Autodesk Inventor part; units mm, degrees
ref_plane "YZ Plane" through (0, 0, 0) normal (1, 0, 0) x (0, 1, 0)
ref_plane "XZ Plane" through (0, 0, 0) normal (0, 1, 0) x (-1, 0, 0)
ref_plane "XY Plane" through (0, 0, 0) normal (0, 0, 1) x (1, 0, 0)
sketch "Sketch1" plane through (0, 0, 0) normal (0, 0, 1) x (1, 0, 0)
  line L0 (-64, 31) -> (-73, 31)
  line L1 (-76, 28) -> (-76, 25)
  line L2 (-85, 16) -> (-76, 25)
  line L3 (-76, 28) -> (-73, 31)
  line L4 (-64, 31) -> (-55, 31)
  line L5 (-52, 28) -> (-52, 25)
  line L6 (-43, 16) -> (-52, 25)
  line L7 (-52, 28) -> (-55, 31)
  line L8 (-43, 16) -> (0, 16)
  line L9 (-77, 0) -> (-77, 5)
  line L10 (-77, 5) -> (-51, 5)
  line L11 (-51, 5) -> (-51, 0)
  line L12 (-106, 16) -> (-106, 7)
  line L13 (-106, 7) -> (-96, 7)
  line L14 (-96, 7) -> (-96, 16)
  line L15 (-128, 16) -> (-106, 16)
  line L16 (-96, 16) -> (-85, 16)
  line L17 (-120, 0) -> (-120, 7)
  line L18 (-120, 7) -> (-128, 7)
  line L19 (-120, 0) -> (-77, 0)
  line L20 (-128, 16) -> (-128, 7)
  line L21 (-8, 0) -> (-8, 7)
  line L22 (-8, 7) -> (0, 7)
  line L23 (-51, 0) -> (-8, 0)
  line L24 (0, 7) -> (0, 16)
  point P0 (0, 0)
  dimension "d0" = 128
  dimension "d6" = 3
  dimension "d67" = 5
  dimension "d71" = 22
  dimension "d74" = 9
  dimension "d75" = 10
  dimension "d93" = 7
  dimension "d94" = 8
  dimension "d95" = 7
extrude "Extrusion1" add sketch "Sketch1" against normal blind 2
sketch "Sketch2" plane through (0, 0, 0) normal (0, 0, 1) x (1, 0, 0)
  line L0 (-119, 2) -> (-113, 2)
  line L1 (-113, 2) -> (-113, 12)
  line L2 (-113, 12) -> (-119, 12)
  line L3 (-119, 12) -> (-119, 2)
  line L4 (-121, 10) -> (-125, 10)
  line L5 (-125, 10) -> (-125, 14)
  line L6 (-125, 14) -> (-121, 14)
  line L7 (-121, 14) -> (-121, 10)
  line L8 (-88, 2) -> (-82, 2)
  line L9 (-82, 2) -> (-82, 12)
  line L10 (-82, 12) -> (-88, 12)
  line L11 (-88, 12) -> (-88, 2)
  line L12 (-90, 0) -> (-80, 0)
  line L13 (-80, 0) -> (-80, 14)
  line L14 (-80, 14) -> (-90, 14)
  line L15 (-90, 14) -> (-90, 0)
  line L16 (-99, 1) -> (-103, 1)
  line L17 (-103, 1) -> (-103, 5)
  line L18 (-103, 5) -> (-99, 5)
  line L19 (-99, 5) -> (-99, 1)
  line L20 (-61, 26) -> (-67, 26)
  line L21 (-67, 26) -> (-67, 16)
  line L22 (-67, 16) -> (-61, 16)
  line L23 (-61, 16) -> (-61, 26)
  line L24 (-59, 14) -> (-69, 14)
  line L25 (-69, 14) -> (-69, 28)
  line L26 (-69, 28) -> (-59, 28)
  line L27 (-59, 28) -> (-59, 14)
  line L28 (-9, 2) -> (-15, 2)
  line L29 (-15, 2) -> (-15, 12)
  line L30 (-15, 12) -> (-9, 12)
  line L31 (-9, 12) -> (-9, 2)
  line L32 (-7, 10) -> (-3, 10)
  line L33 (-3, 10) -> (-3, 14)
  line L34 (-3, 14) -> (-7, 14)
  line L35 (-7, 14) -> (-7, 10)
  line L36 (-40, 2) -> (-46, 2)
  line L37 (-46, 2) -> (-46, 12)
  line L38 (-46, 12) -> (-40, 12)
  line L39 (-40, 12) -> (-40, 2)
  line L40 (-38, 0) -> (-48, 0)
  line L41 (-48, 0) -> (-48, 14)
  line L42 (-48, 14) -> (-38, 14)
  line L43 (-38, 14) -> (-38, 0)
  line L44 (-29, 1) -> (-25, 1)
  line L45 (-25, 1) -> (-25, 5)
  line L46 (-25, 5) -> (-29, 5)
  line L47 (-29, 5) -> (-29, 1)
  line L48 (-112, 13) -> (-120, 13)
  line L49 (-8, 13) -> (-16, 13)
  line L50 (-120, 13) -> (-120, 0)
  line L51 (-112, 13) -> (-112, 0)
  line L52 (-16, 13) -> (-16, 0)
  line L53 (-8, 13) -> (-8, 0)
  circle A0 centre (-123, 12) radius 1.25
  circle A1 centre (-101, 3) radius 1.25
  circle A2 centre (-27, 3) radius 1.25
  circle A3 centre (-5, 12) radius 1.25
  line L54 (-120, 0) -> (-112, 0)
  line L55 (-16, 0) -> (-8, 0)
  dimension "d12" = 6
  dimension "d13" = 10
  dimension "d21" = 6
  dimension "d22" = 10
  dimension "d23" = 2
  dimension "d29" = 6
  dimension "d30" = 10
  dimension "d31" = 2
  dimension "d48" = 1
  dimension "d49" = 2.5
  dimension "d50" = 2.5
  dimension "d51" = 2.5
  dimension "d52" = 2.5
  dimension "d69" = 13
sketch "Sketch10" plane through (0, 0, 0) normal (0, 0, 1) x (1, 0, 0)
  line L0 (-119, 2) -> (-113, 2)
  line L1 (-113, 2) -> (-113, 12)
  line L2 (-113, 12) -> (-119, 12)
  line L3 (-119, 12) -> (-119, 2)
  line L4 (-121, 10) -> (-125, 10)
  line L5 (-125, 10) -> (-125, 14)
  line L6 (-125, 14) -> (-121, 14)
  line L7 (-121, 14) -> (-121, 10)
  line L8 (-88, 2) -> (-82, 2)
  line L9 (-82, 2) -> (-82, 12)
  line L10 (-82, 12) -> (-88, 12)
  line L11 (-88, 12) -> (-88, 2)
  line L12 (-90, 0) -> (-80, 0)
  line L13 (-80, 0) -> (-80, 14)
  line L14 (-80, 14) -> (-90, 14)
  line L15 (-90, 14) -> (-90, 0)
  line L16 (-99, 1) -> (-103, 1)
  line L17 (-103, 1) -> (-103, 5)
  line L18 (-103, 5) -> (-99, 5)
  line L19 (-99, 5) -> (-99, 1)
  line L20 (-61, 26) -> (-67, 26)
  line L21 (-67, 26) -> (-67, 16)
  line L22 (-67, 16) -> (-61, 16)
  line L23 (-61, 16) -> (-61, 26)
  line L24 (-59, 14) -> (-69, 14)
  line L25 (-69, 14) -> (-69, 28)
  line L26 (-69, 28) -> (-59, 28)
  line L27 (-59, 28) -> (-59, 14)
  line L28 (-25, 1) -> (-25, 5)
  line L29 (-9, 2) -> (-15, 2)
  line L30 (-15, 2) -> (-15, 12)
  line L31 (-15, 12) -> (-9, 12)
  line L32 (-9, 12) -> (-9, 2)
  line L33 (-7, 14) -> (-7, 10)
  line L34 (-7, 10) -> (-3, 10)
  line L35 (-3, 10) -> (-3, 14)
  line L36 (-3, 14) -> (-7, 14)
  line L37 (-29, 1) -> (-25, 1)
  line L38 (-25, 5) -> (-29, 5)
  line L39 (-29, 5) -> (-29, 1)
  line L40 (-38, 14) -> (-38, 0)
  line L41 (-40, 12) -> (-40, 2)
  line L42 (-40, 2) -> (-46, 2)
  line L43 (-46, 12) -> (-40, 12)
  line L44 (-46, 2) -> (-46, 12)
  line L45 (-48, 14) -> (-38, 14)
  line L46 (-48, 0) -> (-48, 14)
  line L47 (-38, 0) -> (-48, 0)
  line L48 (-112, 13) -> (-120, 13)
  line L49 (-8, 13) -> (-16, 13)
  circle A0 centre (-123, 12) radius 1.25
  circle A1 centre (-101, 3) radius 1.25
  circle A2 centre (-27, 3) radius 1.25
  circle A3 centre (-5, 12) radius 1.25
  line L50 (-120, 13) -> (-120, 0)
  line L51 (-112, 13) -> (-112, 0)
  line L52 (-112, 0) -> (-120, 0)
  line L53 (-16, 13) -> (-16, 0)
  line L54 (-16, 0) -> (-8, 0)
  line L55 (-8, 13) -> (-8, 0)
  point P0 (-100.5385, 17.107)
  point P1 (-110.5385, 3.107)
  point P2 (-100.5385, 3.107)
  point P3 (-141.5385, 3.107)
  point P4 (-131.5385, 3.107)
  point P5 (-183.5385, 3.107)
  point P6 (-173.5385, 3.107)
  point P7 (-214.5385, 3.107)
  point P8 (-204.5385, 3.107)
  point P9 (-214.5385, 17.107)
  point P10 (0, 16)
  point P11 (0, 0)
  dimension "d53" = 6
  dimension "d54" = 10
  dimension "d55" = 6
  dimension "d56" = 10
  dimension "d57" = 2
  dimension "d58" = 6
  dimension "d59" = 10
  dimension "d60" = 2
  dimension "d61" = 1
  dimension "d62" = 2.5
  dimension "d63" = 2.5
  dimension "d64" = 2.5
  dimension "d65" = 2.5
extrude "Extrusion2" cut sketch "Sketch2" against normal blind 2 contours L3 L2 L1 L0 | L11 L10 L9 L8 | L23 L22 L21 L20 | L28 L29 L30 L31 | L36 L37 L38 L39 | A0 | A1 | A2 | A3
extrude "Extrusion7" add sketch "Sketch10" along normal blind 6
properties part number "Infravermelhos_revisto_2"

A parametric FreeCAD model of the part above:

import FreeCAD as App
import Part
import Sketcher
from FreeCAD import Vector

doc = App.newDocument("Part")
params = doc.addObject("Spreadsheet::Sheet", "Params")
for row, (alias, value) in enumerate([
    ("sketch1_width", "10 mm"),
    ("sketch1_width2", "22 mm"),
    ("sketch1_width3", "8 mm"),
    ("sketch1_height", "3 mm"),
    ("sketch1_height2", "9 mm"),
    ("pad1_length", "2 mm"),
    ("sketch2_diameter", "2.5 mm"),
    ("sketch2_width", "6 mm"),
    ("sketch2_height", "10 mm"),
    ("pocket1_length", "2 mm"),
    ("sketch3_diameter", "2.5 mm"),
    ("sketch3_width", "10 mm"),
    ("sketch3_width2", "6 mm"),
    ("pad2_length", "6 mm"),
], start=1):
    params.set(f"A{row}", alias)
    params.set(f"B{row}", "=" + value)
    params.setAlias(f"B{row}", alias)

body = doc.addObject("PartDesign::Body", "Body")

# Sketch on XY plane
sketch1 = body.newObject("Sketcher::SketchObject", "Sketch")
sketch1.AttachmentSupport = (doc.getObject("XY_Plane"), [""])
sketch1.MapMode = "FlatFace"
sketch1.addGeometry([
    Part.LineSegment(Vector(-55, 31, 0), Vector(-73, 31, 0)),  # 0
    Part.LineSegment(Vector(-73, 31, 0), Vector(-76, 28, 0)),  # 1
    Part.LineSegment(Vector(-76, 28, 0), Vector(-76, 25, 0)),  # 2
    Part.LineSegment(Vector(-76, 25, 0), Vector(-85, 16, 0)),  # 3
    Part.LineSegment(Vector(-85, 16, 0), Vector(-96, 16, 0)),  # 4
    Part.LineSegment(Vector(-96, 16, 0), Vector(-96, 7, 0)),  # 5
    Part.LineSegment(Vector(-96, 7, 0), Vector(-106, 7, 0)),  # 6
    Part.LineSegment(Vector(-106, 7, 0), Vector(-106, 16, 0)),  # 7
    Part.LineSegment(Vector(-106, 16, 0), Vector(-128, 16, 0)),  # 8
    Part.LineSegment(Vector(-128, 16, 0), Vector(-128, 7, 0)),  # 9
    Part.LineSegment(Vector(-128, 7, 0), Vector(-120, 7, 0)),  # 10
    Part.LineSegment(Vector(-120, 7, 0), Vector(-120, 0, 0)),  # 11
    Part.LineSegment(Vector(-120, 0, 0), Vector(-77, 0, 0)),  # 12
    Part.LineSegment(Vector(-77, 0, 0), Vector(-77, 5, 0)),  # 13
    Part.LineSegment(Vector(-77, 5, 0), Vector(-51, 5, 0)),  # 14
    Part.LineSegment(Vector(-51, 5, 0), Vector(-51, 0, 0)),  # 15
    Part.LineSegment(Vector(-51, 0, 0), Vector(-8, 0, 0)),  # 16
    Part.LineSegment(Vector(-8, 0, 0), Vector(-8, 7, 0)),  # 17
    Part.LineSegment(Vector(-8, 7, 0), Vector(0, 7, 0)),  # 18
    Part.LineSegment(Vector(0, 7, 0), Vector(0, 16, 0)),  # 19
    Part.LineSegment(Vector(0, 16, 0), Vector(-43, 16, 0)),  # 20
    Part.LineSegment(Vector(-43, 16, 0), Vector(-52, 25, 0)),  # 21
    Part.LineSegment(Vector(-52, 25, 0), Vector(-52, 28, 0)),  # 22
    Part.LineSegment(Vector(-52, 28, 0), Vector(-55, 31, 0)),  # 23
], False)
sketch1.addConstraint([
    Sketcher.Constraint("Coincident", 0, 2, 1, 1),
    Sketcher.Constraint("Coincident", 1, 2, 2, 1),
    Sketcher.Constraint("Coincident", 2, 2, 3, 1),
    Sketcher.Constraint("Coincident", 3, 2, 4, 1),
    Sketcher.Constraint("Coincident", 4, 2, 5, 1),
    Sketcher.Constraint("Coincident", 5, 2, 6, 1),
    Sketcher.Constraint("Coincident", 6, 2, 7, 1),
    Sketcher.Constraint("Coincident", 7, 2, 8, 1),
    Sketcher.Constraint("Coincident", 8, 2, 9, 1),
    Sketcher.Constraint("Coincident", 9, 2, 10, 1),
    Sketcher.Constraint("Coincident", 10, 2, 11, 1),
    Sketcher.Constraint("Coincident", 11, 2, 12, 1),
    Sketcher.Constraint("Coincident", 12, 2, 13, 1),
    Sketcher.Constraint("Coincident", 13, 2, 14, 1),
    Sketcher.Constraint("Coincident", 14, 2, 15, 1),
    Sketcher.Constraint("Coincident", 15, 2, 16, 1),
    Sketcher.Constraint("Coincident", 16, 2, 17, 1),
    Sketcher.Constraint("Coincident", 17, 2, 18, 1),
    Sketcher.Constraint("Coincident", 18, 2, 19, 1),
    Sketcher.Constraint("Coincident", 19, 2, 20, 1),
    Sketcher.Constraint("Coincident", 20, 2, 21, 1),
    Sketcher.Constraint("Coincident", 21, 2, 22, 1),
    Sketcher.Constraint("Coincident", 22, 2, 23, 1),
    Sketcher.Constraint("Coincident", 23, 2, 0, 1),
    Sketcher.Constraint("Horizontal", 0),
    Sketcher.Constraint("Vertical", 2),
    Sketcher.Constraint("Horizontal", 4),
    Sketcher.Constraint("Vertical", 5),
    Sketcher.Constraint("Horizontal", 6),
    Sketcher.Constraint("Vertical", 7),
    Sketcher.Constraint("Horizontal", 8),
    Sketcher.Constraint("Vertical", 9),
    Sketcher.Constraint("Horizontal", 10),
    Sketcher.Constraint("Vertical", 11),
    Sketcher.Constraint("Horizontal", 12),
    Sketcher.Constraint("Vertical", 13),
    Sketcher.Constraint("Horizontal", 14),
    Sketcher.Constraint("Vertical", 15),
    Sketcher.Constraint("Horizontal", 16),
    Sketcher.Constraint("Vertical", 17),
    Sketcher.Constraint("Horizontal", 18),
    Sketcher.Constraint("Vertical", 19),
    Sketcher.Constraint("Horizontal", 20),
    Sketcher.Constraint("Vertical", 22),
    Sketcher.Constraint("PointOnObject", 11, 2, -1),
    Sketcher.Constraint("PointOnObject", 15, 2, -1),
    Sketcher.Constraint("PointOnObject", 18, 2, -2),
    Sketcher.Constraint("Parallel", 1, 3),
    Sketcher.Constraint("Perpendicular", 3, 21),
    Sketcher.Constraint("Parallel", 21, 23),
    Sketcher.Constraint("Horizontal", 4, 2, 7, 2),
    Sketcher.Constraint("Horizontal", 6, 2, 9, 2),
    Sketcher.Constraint("Horizontal", 10, 2, 17, 2),
    Sketcher.Constraint("Horizontal", 8, 2, 19, 2),
    Sketcher.Constraint("Horizontal", 2, 2, 21, 2),
    Sketcher.Constraint("Horizontal", 1, 2, 22, 2),
    Sketcher.Constraint("Equal", 12, 16),
    Sketcher.Constraint("Equal", 10, 18),
    Sketcher.Constraint("Equal", 16, 20),
    Sketcher.Constraint("Equal", 3, 21),
    Sketcher.Constraint("DistanceX", 6, 2, 6, 1, 10.0),
    Sketcher.Constraint("DistanceX", 8, 2, 8, 1, 22.0),
    Sketcher.Constraint("DistanceX", 10, 1, 10, 2, 8.0),
    Sketcher.Constraint("DistanceY", 2, 2, 2, 1, 3.0),
    Sketcher.Constraint("DistanceY", 5, 2, 5, 1, 9.0),
    Sketcher.Constraint("DistanceY", 11, 2, 11, 1, 7.0),
    Sketcher.Constraint("DistanceY", 13, 1, 13, 2, 5.0),
    Sketcher.Constraint("DistanceX", 8, 2, -1, 1, 128.0),
    Sketcher.Constraint("DistanceX", 1, 2, 0, 2, 3.0),
    Sketcher.Constraint("DistanceX", 3, 2, 2, 2, 9.0),
    Sketcher.Constraint("DistanceX", 3, 2, 12, 2, 8.0),
    Sketcher.Constraint("DistanceX", 0, 2, 14, 2, 22.0),
])
sketch1.setExpression("Constraints[60]", "Params.sketch1_width")
sketch1.setExpression("Constraints[61]", "Params.sketch1_width2")
sketch1.setExpression("Constraints[62]", "Params.sketch1_width3")
sketch1.setExpression("Constraints[63]", "Params.sketch1_height")
sketch1.setExpression("Constraints[64]", "Params.sketch1_height2")
pad1 = body.newObject("PartDesign::Pad", "Pad")
pad1.Profile = sketch1
pad1.setExpression("Length", "Params.pad1_length")
pad1.Reversed = True

# Sketch on XY plane
sketch2 = body.newObject("Sketcher::SketchObject", "Sketch001")
sketch2.AttachmentSupport = (doc.getObject("XY_Plane"), [""])
sketch2.MapMode = "FlatFace"
sketch2.addGeometry([
    Part.LineSegment(Vector(-119, 12, 0), Vector(-119, 2, 0)),  # 0
    Part.LineSegment(Vector(-119, 2, 0), Vector(-113, 2, 0)),  # 1
    Part.LineSegment(Vector(-113, 2, 0), Vector(-113, 12, 0)),  # 2
    Part.LineSegment(Vector(-113, 12, 0), Vector(-119, 12, 0)),  # 3
    Part.LineSegment(Vector(-88, 12, 0), Vector(-88, 2, 0)),  # 4
    Part.LineSegment(Vector(-88, 2, 0), Vector(-82, 2, 0)),  # 5
    Part.LineSegment(Vector(-82, 2, 0), Vector(-82, 12, 0)),  # 6
    Part.LineSegment(Vector(-82, 12, 0), Vector(-88, 12, 0)),  # 7
    Part.LineSegment(Vector(-61, 16, 0), Vector(-61, 26, 0)),  # 8
    Part.LineSegment(Vector(-61, 26, 0), Vector(-67, 26, 0)),  # 9
    Part.LineSegment(Vector(-67, 26, 0), Vector(-67, 16, 0)),  # 10
    Part.LineSegment(Vector(-67, 16, 0), Vector(-61, 16, 0)),  # 11
    Part.LineSegment(Vector(-15, 2, 0), Vector(-9, 2, 0)),  # 12
    Part.LineSegment(Vector(-9, 2, 0), Vector(-9, 12, 0)),  # 13
    Part.LineSegment(Vector(-9, 12, 0), Vector(-15, 12, 0)),  # 14
    Part.LineSegment(Vector(-15, 12, 0), Vector(-15, 2, 0)),  # 15
    Part.LineSegment(Vector(-46, 2, 0), Vector(-40, 2, 0)),  # 16
    Part.LineSegment(Vector(-40, 2, 0), Vector(-40, 12, 0)),  # 17
    Part.LineSegment(Vector(-40, 12, 0), Vector(-46, 12, 0)),  # 18
    Part.LineSegment(Vector(-46, 12, 0), Vector(-46, 2, 0)),  # 19
    Part.Circle(Vector(-123, 12, 0), Vector(0, 0, 1), 1.2),  # 20
    Part.Circle(Vector(-101, 3, 0), Vector(0, 0, 1), 1.2),  # 21
    Part.Circle(Vector(-27, 3, 0), Vector(0, 0, 1), 1.2),  # 22
    Part.Circle(Vector(-5, 12, 0), Vector(0, 0, 1), 1.2),  # 23
], False)
sketch2.addConstraint([
    Sketcher.Constraint("Coincident", 0, 2, 1, 1),
    Sketcher.Constraint("Coincident", 1, 2, 2, 1),
    Sketcher.Constraint("Coincident", 2, 2, 3, 1),
    Sketcher.Constraint("Coincident", 3, 2, 0, 1),
    Sketcher.Constraint("Coincident", 4, 2, 5, 1),
    Sketcher.Constraint("Coincident", 5, 2, 6, 1),
    Sketcher.Constraint("Coincident", 6, 2, 7, 1),
    Sketcher.Constraint("Coincident", 7, 2, 4, 1),
    Sketcher.Constraint("Coincident", 8, 2, 9, 1),
    Sketcher.Constraint("Coincident", 9, 2, 10, 1),
    Sketcher.Constraint("Coincident", 10, 2, 11, 1),
    Sketcher.Constraint("Coincident", 11, 2, 8, 1),
    Sketcher.Constraint("Coincident", 12, 2, 13, 1),
    Sketcher.Constraint("Coincident", 13, 2, 14, 1),
    Sketcher.Constraint("Coincident", 14, 2, 15, 1),
    Sketcher.Constraint("Coincident", 15, 2, 12, 1),
    Sketcher.Constraint("Coincident", 16, 2, 17, 1),
    Sketcher.Constraint("Coincident", 17, 2, 18, 1),
    Sketcher.Constraint("Coincident", 18, 2, 19, 1),
    Sketcher.Constraint("Coincident", 19, 2, 16, 1),
    Sketcher.Constraint("Vertical", 0),
    Sketcher.Constraint("Horizontal", 1),
    Sketcher.Constraint("Vertical", 2),
    Sketcher.Constraint("Horizontal", 3),
    Sketcher.Constraint("Vertical", 4),
    Sketcher.Constraint("Horizontal", 5),
    Sketcher.Constraint("Vertical", 6),
    Sketcher.Constraint("Horizontal", 7),
    Sketcher.Constraint("Vertical", 8),
    Sketcher.Constraint("Horizontal", 9),
    Sketcher.Constraint("Vertical", 10),
    Sketcher.Constraint("Horizontal", 11),
    Sketcher.Constraint("Horizontal", 12),
    Sketcher.Constraint("Vertical", 13),
    Sketcher.Constraint("Horizontal", 14),
    Sketcher.Constraint("Vertical", 15),
    Sketcher.Constraint("Horizontal", 16),
    Sketcher.Constraint("Vertical", 17),
    Sketcher.Constraint("Horizontal", 18),
    Sketcher.Constraint("Vertical", 19),
    Sketcher.Constraint("Equal", 20, 21),
    Sketcher.Constraint("Equal", 21, 22),
    Sketcher.Constraint("Equal", 22, 23),
    Sketcher.Constraint("Horizontal", 21, 3, 22, 3),
    Sketcher.Constraint("Horizontal", 20, 3, 23, 3),
    Sketcher.Constraint("Horizontal", 23, 3, 2, 2),
    Sketcher.Constraint("Horizontal", 1, 2, 4, 2),
    Sketcher.Constraint("Horizontal", 3, 2, 6, 2),
    Sketcher.Constraint("Horizontal", 5, 2, 12, 2),
    Sketcher.Constraint("Horizontal", 7, 2, 13, 2),
    Sketcher.Constraint("Horizontal", 15, 2, 16, 2),
    Sketcher.Constraint("Horizontal", 14, 2, 17, 2),
    Sketcher.Constraint("Equal", 3, 5),
    Sketcher.Constraint("Equal", 7, 9),
    Sketcher.Constraint("Equal", 11, 12),
    Sketcher.Constraint("Equal", 14, 16),
    Sketcher.Constraint("Equal", 6, 8),
    Sketcher.Constraint("Diameter", 20, 2.5),
    Sketcher.Constraint("DistanceX", 1, 1, 1, 2, 6.0),
    Sketcher.Constraint("DistanceY", 0, 2, 0, 1, 10.0),
    Sketcher.Constraint("DistanceY", -1, 1, 0, 2, 2.0),
    Sketcher.Constraint("DistanceY", 0, 2, 21, 3, 1.0),
    Sketcher.Constraint("DistanceX", 20, 3, 1, 2, 10.0),
    Sketcher.Constraint("DistanceX", 21, 3, 4, 2, 13.0),
    Sketcher.Constraint("DistanceX", 14, 2, 23, 3, 10.0),
    Sketcher.Constraint("DistanceX", 16, 2, 22, 3, 13.0),
    Sketcher.Constraint("DistanceX", 20, 3, -1, 1, 123.0),
    Sketcher.Constraint("DistanceX", 21, 3, -1, 1, 101.0),
    Sketcher.Constraint("DistanceX", 22, 3, -1, 1, 27.0),
    Sketcher.Constraint("DistanceX", 23, 3, -1, 1, 5.0),
    Sketcher.Constraint("DistanceX", 8, 2, -1, 1, 61.0),
    Sketcher.Constraint("DistanceY", -1, 1, 8, 2, 26.0),
])
sketch2.setExpression("Constraints[57]", "Params.sketch2_diameter")
sketch2.setExpression("Constraints[58]", "Params.sketch2_width")
sketch2.setExpression("Constraints[59]", "Params.sketch2_height")
pocket1 = body.newObject("PartDesign::Pocket", "Pocket")
pocket1.Profile = sketch2
pocket1.setExpression("Length", "Params.pocket1_length")

# Sketch on XY plane
sketch3 = body.newObject("Sketcher::SketchObject", "Sketch002")
sketch3.AttachmentSupport = (doc.getObject("XY_Plane"), [""])
sketch3.MapMode = "FlatFace"
sketch3.addGeometry([
    Part.LineSegment(Vector(-125, 10, 0), Vector(-121, 10, 0)),  # 0
    Part.LineSegment(Vector(-121, 10, 0), Vector(-121, 14, 0)),  # 1
    Part.LineSegment(Vector(-121, 14, 0), Vector(-125, 14, 0)),  # 2
    Part.LineSegment(Vector(-125, 14, 0), Vector(-125, 10, 0)),  # 3
    Part.Circle(Vector(-123, 12, 0), Vector(0, 0, 1), 1.2),  # 4
    Part.LineSegment(Vector(-90, 14, 0), Vector(-90, 0, 0)),  # 5
    Part.LineSegment(Vector(-90, 0, 0), Vector(-80, 0, 0)),  # 6
    Part.LineSegment(Vector(-80, 0, 0), Vector(-80, 14, 0)),  # 7
    Part.LineSegment(Vector(-80, 14, 0), Vector(-90, 14, 0)),  # 8
    Part.LineSegment(Vector(-82, 2, 0), Vector(-88, 2, 0)),  # 9
    Part.LineSegment(Vector(-88, 2, 0), Vector(-88, 12, 0)),  # 10
    Part.LineSegment(Vector(-88, 12, 0), Vector(-82, 12, 0)),  # 11
    Part.LineSegment(Vector(-82, 12, 0), Vector(-82, 2, 0)),  # 12
    Part.LineSegment(Vector(-103, 1, 0), Vector(-99, 1, 0)),  # 13
    Part.LineSegment(Vector(-99, 1, 0), Vector(-99, 5, 0)),  # 14
    Part.LineSegment(Vector(-99, 5, 0), Vector(-103, 5, 0)),  # 15
    Part.LineSegment(Vector(-103, 5, 0), Vector(-103, 1, 0)),  # 16
    Part.Circle(Vector(-101, 3, 0), Vector(0, 0, 1), 1.2),  # 17
    Part.LineSegment(Vector(-69, 14, 0), Vector(-59, 14, 0)),  # 18
    Part.LineSegment(Vector(-59, 14, 0), Vector(-59, 28, 0)),  # 19
    Part.LineSegment(Vector(-59, 28, 0), Vector(-69, 28, 0)),  # 20
    Part.LineSegment(Vector(-69, 28, 0), Vector(-69, 14, 0)),  # 21
    Part.LineSegment(Vector(-67, 26, 0), Vector(-61, 26, 0)),  # 22
    Part.LineSegment(Vector(-61, 26, 0), Vector(-61, 16, 0)),  # 23
    Part.LineSegment(Vector(-61, 16, 0), Vector(-67, 16, 0)),  # 24
    Part.LineSegment(Vector(-67, 16, 0), Vector(-67, 26, 0)),  # 25
    Part.LineSegment(Vector(-29, 1, 0), Vector(-25, 1, 0)),  # 26
    Part.LineSegment(Vector(-25, 1, 0), Vector(-25, 5, 0)),  # 27
    Part.LineSegment(Vector(-25, 5, 0), Vector(-29, 5, 0)),  # 28
    Part.LineSegment(Vector(-29, 5, 0), Vector(-29, 1, 0)),  # 29
    Part.Circle(Vector(-27, 3, 0), Vector(0, 0, 1), 1.2),  # 30
    Part.LineSegment(Vector(-3, 14, 0), Vector(-7, 14, 0)),  # 31
    Part.LineSegment(Vector(-7, 14, 0), Vector(-7, 10, 0)),  # 32
    Part.LineSegment(Vector(-7, 10, 0), Vector(-3, 10, 0)),  # 33
    Part.LineSegment(Vector(-3, 10, 0), Vector(-3, 14, 0)),  # 34
    Part.Circle(Vector(-5, 12, 0), Vector(0, 0, 1), 1.2),  # 35
    Part.LineSegment(Vector(-38, 0, 0), Vector(-38, 14, 0)),  # 36
    Part.LineSegment(Vector(-38, 14, 0), Vector(-48, 14, 0)),  # 37
    Part.LineSegment(Vector(-48, 14, 0), Vector(-48, 0, 0)),  # 38
    Part.LineSegment(Vector(-48, 0, 0), Vector(-38, 0, 0)),  # 39
    Part.LineSegment(Vector(-46, 12, 0), Vector(-40, 12, 0)),  # 40
    Part.LineSegment(Vector(-40, 12, 0), Vector(-40, 2, 0)),  # 41
    Part.LineSegment(Vector(-40, 2, 0), Vector(-46, 2, 0)),  # 42
    Part.LineSegment(Vector(-46, 2, 0), Vector(-46, 12, 0)),  # 43
    Part.LineSegment(Vector(-112, 0, 0), Vector(-112, 13, 0)),  # 44
    Part.LineSegment(Vector(-112, 13, 0), Vector(-120, 13, 0)),  # 45
    Part.LineSegment(Vector(-120, 13, 0), Vector(-120, 0, 0)),  # 46
    Part.LineSegment(Vector(-120, 0, 0), Vector(-112, 0, 0)),  # 47
    Part.LineSegment(Vector(-113, 2, 0), Vector(-119, 2, 0)),  # 48
    Part.LineSegment(Vector(-119, 2, 0), Vector(-119, 12, 0)),  # 49
    Part.LineSegment(Vector(-119, 12, 0), Vector(-113, 12, 0)),  # 50
    Part.LineSegment(Vector(-113, 12, 0), Vector(-113, 2, 0)),  # 51
    Part.LineSegment(Vector(-8, 0, 0), Vector(-8, 13, 0)),  # 52
    Part.LineSegment(Vector(-8, 13, 0), Vector(-16, 13, 0)),  # 53
    Part.LineSegment(Vector(-16, 13, 0), Vector(-16, 0, 0)),  # 54
    Part.LineSegment(Vector(-16, 0, 0), Vector(-8, 0, 0)),  # 55
    Part.LineSegment(Vector(-9, 12, 0), Vector(-9, 2, 0)),  # 56
    Part.LineSegment(Vector(-9, 2, 0), Vector(-15, 2, 0)),  # 57
    Part.LineSegment(Vector(-15, 2, 0), Vector(-15, 12, 0)),  # 58
    Part.LineSegment(Vector(-15, 12, 0), Vector(-9, 12, 0)),  # 59
], False)
sketch3.addConstraint([
    Sketcher.Constraint("Coincident", 0, 2, 1, 1),
    Sketcher.Constraint("Coincident", 1, 2, 2, 1),
    Sketcher.Constraint("Coincident", 2, 2, 3, 1),
    Sketcher.Constraint("Coincident", 3, 2, 0, 1),
    Sketcher.Constraint("Coincident", 5, 2, 6, 1),
    Sketcher.Constraint("Coincident", 6, 2, 7, 1),
    Sketcher.Constraint("Coincident", 7, 2, 8, 1),
    Sketcher.Constraint("Coincident", 8, 2, 5, 1),
    Sketcher.Constraint("Coincident", 9, 2, 10, 1),
    Sketcher.Constraint("Coincident", 10, 2, 11, 1),
    Sketcher.Constraint("Coincident", 11, 2, 12, 1),
    Sketcher.Constraint("Coincident", 12, 2, 9, 1),
    Sketcher.Constraint("Coincident", 13, 2, 14, 1),
    Sketcher.Constraint("Coincident", 14, 2, 15, 1),
    Sketcher.Constraint("Coincident", 15, 2, 16, 1),
    Sketcher.Constraint("Coincident", 16, 2, 13, 1),
    Sketcher.Constraint("Coincident", 18, 2, 19, 1),
    Sketcher.Constraint("Coincident", 19, 2, 20, 1),
    Sketcher.Constraint("Coincident", 20, 2, 21, 1),
    Sketcher.Constraint("Coincident", 21, 2, 18, 1),
    Sketcher.Constraint("Coincident", 22, 2, 23, 1),
    Sketcher.Constraint("Coincident", 23, 2, 24, 1),
    Sketcher.Constraint("Coincident", 24, 2, 25, 1),
    Sketcher.Constraint("Coincident", 25, 2, 22, 1),
    Sketcher.Constraint("Coincident", 26, 2, 27, 1),
    Sketcher.Constraint("Coincident", 27, 2, 28, 1),
    Sketcher.Constraint("Coincident", 28, 2, 29, 1),
    Sketcher.Constraint("Coincident", 29, 2, 26, 1),
    Sketcher.Constraint("Coincident", 31, 2, 32, 1),
    Sketcher.Constraint("Coincident", 32, 2, 33, 1),
    Sketcher.Constraint("Coincident", 33, 2, 34, 1),
    Sketcher.Constraint("Coincident", 34, 2, 31, 1),
    Sketcher.Constraint("Coincident", 36, 2, 37, 1),
    Sketcher.Constraint("Coincident", 37, 2, 38, 1),
    Sketcher.Constraint("Coincident", 38, 2, 39, 1),
    Sketcher.Constraint("Coincident", 39, 2, 36, 1),
    Sketcher.Constraint("Coincident", 40, 2, 41, 1),
    Sketcher.Constraint("Coincident", 41, 2, 42, 1),
    Sketcher.Constraint("Coincident", 42, 2, 43, 1),
    Sketcher.Constraint("Coincident", 43, 2, 40, 1),
    Sketcher.Constraint("Coincident", 44, 2, 45, 1),
    Sketcher.Constraint("Coincident", 45, 2, 46, 1),
    Sketcher.Constraint("Coincident", 46, 2, 47, 1),
    Sketcher.Constraint("Coincident", 47, 2, 44, 1),
    Sketcher.Constraint("Coincident", 48, 2, 49, 1),
    Sketcher.Constraint("Coincident", 49, 2, 50, 1),
    Sketcher.Constraint("Coincident", 50, 2, 51, 1),
    Sketcher.Constraint("Coincident", 51, 2, 48, 1),
    Sketcher.Constraint("Coincident", 52, 2, 53, 1),
    Sketcher.Constraint("Coincident", 53, 2, 54, 1),
    Sketcher.Constraint("Coincident", 54, 2, 55, 1),
    Sketcher.Constraint("Coincident", 55, 2, 52, 1),
    Sketcher.Constraint("Coincident", 56, 2, 57, 1),
    Sketcher.Constraint("Coincident", 57, 2, 58, 1),
    Sketcher.Constraint("Coincident", 58, 2, 59, 1),
    Sketcher.Constraint("Coincident", 59, 2, 56, 1),
    Sketcher.Constraint("Horizontal", 0),
    Sketcher.Constraint("Vertical", 1),
    Sketcher.Constraint("Horizontal", 2),
    Sketcher.Constraint("Vertical", 3),
    Sketcher.Constraint("Vertical", 5),
    Sketcher.Constraint("Horizontal", 6),
    Sketcher.Constraint("Vertical", 7),
    Sketcher.Constraint("Horizontal", 8),
    Sketcher.Constraint("Horizontal", 9),
    Sketcher.Constraint("Vertical", 10),
    Sketcher.Constraint("Horizontal", 11),
    Sketcher.Constraint("Vertical", 12),
    Sketcher.Constraint("Horizontal", 13),
    Sketcher.Constraint("Vertical", 14),
    Sketcher.Constraint("Horizontal", 15),
    Sketcher.Constraint("Vertical", 16),
    Sketcher.Constraint("Horizontal", 18),
    Sketcher.Constraint("Vertical", 19),
    Sketcher.Constraint("Horizontal", 20),
    Sketcher.Constraint("Vertical", 21),
    Sketcher.Constraint("Horizontal", 22),
    Sketcher.Constraint("Vertical", 23),
    Sketcher.Constraint("Horizontal", 24),
    Sketcher.Constraint("Vertical", 25),
    Sketcher.Constraint("Horizontal", 26),
    Sketcher.Constraint("Vertical", 27),
    Sketcher.Constraint("Horizontal", 28),
    Sketcher.Constraint("Vertical", 29),
    Sketcher.Constraint("Horizontal", 31),
    Sketcher.Constraint("Vertical", 32),
    Sketcher.Constraint("Horizontal", 33),
    Sketcher.Constraint("Vertical", 34),
    Sketcher.Constraint("Vertical", 36),
    Sketcher.Constraint("Horizontal", 37),
    Sketcher.Constraint("Vertical", 38),
    Sketcher.Constraint("Horizontal", 39),
    Sketcher.Constraint("Horizontal", 40),
    Sketcher.Constraint("Vertical", 41),
    Sketcher.Constraint("Horizontal", 42),
    Sketcher.Constraint("Vertical", 43),
    Sketcher.Constraint("Vertical", 44),
    Sketcher.Constraint("Horizontal", 45),
    Sketcher.Constraint("Vertical", 46),
    Sketcher.Constraint("Horizontal", 47),
    Sketcher.Constraint("Horizontal", 48),
    Sketcher.Constraint("Vertical", 49),
    Sketcher.Constraint("Horizontal", 50),
    Sketcher.Constraint("Vertical", 51),
    Sketcher.Constraint("Vertical", 52),
    Sketcher.Constraint("Horizontal", 53),
    Sketcher.Constraint("Vertical", 54),
    Sketcher.Constraint("Horizontal", 55),
    Sketcher.Constraint("Vertical", 56),
    Sketcher.Constraint("Horizontal", 57),
    Sketcher.Constraint("Vertical", 58),
    Sketcher.Constraint("Horizontal", 59),
    Sketcher.Constraint("Equal", 4, 17),
    Sketcher.Constraint("Equal", 17, 30),
    Sketcher.Constraint("Equal", 30, 35),
    Sketcher.Constraint("PointOnObject", 5, 2, -1),
    Sketcher.Constraint("PointOnObject", 38, 2, -1),
    Sketcher.Constraint("PointOnObject", 46, 2, -1),
    Sketcher.Constraint("PointOnObject", 54, 2, -1),
    Sketcher.Constraint("Horizontal", 17, 3, 30, 3),
    Sketcher.Constraint("Horizontal", 4, 3, 35, 3),
    Sketcher.Constraint("Horizontal", 2, 2, 7, 2),
    Sketcher.Constraint("Horizontal", 35, 3, 10, 2),
    Sketcher.Constraint("Horizontal", 8, 2, 18, 2),
    Sketcher.Constraint("Horizontal", 16, 2, 26, 2),
    Sketcher.Constraint("Horizontal", 15, 2, 27, 2),
    Sketcher.Constraint("Horizontal", 21, 2, 31, 2),
    Sketcher.Constraint("Horizontal", 3, 2, 32, 2),
    Sketcher.Constraint("Horizontal", 34, 2, 36, 2),
    Sketcher.Constraint("Horizontal", 11, 2, 40, 2),
    Sketcher.Constraint("Horizontal", 12, 2, 41, 2),
    Sketcher.Constraint("Horizontal", 42, 2, 48, 2),
    Sketcher.Constraint("Horizontal", 43, 2, 49, 2),
    Sketcher.Constraint("Horizontal", 45, 2, 52, 2),
    Sketcher.Constraint("Horizontal", 51, 2, 56, 2),
    Sketcher.Constraint("Horizontal", 50, 2, 58, 2),
    Sketcher.Constraint("Equal", 2, 13),
    Sketcher.Constraint("Equal", 8, 18),
    Sketcher.Constraint("Equal", 11, 22),
    Sketcher.Constraint("Equal", 15, 26),
    Sketcher.Constraint("Equal", 28, 31),
    Sketcher.Constraint("Equal", 20, 37),
    Sketcher.Constraint("Equal", 24, 40),
    Sketcher.Constraint("Equal", 42, 48),
    Sketcher.Constraint("Equal", 47, 53),
    Sketcher.Constraint("Equal", 50, 57),
    Sketcher.Constraint("Equal", 33, 1),
    Sketcher.Constraint("Equal", 39, 10),
    Sketcher.Constraint("Equal", 3, 14),
    Sketcher.Constraint("Equal", 7, 19),
    Sketcher.Constraint("Equal", 12, 23),
    Sketcher.Constraint("Diameter", 4, 2.5),
    Sketcher.Constraint("DistanceX", 6, 1, 6, 2, 10.0),
    Sketcher.Constraint("DistanceX", 9, 2, 9, 1, 6.0),
    Sketcher.Constraint("DistanceY", -1, 1, 0, 2, 10.0),
    Sketcher.Constraint("DistanceY", -1, 1, 9, 2, 2.0),
    Sketcher.Constraint("DistanceY", -1, 1, 13, 2, 1.0),
    Sketcher.Constraint("DistanceX", 4, 3, 0, 2, 2.0),
    Sketcher.Constraint("DistanceY", 4, 3, 1, 2, 2.0),
    Sketcher.Constraint("DistanceX", 5, 2, 9, 2, 2.0),
    Sketcher.Constraint("DistanceY", 9, 2, 17, 3, 1.0),
    Sketcher.Constraint("DistanceX", 17, 3, 13, 2, 2.0),
    Sketcher.Constraint("DistanceX", 22, 2, 19, 2, 2.0),
    Sketcher.Constraint("DistanceY", 22, 2, 19, 2, 2.0),
    Sketcher.Constraint("DistanceX", 30, 3, 26, 2, 2.0),
    Sketcher.Constraint("DistanceX", 31, 2, 35, 3, 2.0),
    Sketcher.Constraint("DistanceX", 40, 2, 36, 2, 2.0),
    Sketcher.Constraint("DistanceY", 44, 2, 1, 2, 1.0),
    Sketcher.Constraint("DistanceX", 1, 2, 45, 2, 1.0),
    Sketcher.Constraint("DistanceX", 46, 2, 48, 2, 1.0),
    Sketcher.Constraint("DistanceX", 50, 2, 44, 2, 1.0),
    Sketcher.Constraint("DistanceX", 51, 2, 16, 2, 10.0),
    Sketcher.Constraint("DistanceX", 52, 2, 31, 2, 1.0),
    Sketcher.Constraint("DistanceX", 56, 2, 55, 2, 1.0),
    Sketcher.Constraint("DistanceX", 26, 2, 57, 2, 10.0),
    Sketcher.Constraint("DistanceX", 4, 3, -1, 1, 123.0),
    Sketcher.Constraint("DistanceX", 30, 3, -1, 1, 27.0),
    Sketcher.Constraint("DistanceX", 5, 2, -1, 1, 90.0),
    Sketcher.Constraint("DistanceX", 18, 2, -1, 1, 59.0),
    Sketcher.Constraint("DistanceX", 36, 2, -1, 1, 38.0),
])
sketch3.setExpression("Constraints[151]", "Params.sketch3_diameter")
sketch3.setExpression("Constraints[152]", "Params.sketch3_width")
sketch3.setExpression("Constraints[153]", "Params.sketch3_width2")
pad2 = body.newObject("PartDesign::Pad", "Pad001")
pad2.Profile = sketch3
pad2.setExpression("Length", "Params.pad2_length")

doc.recompute()
